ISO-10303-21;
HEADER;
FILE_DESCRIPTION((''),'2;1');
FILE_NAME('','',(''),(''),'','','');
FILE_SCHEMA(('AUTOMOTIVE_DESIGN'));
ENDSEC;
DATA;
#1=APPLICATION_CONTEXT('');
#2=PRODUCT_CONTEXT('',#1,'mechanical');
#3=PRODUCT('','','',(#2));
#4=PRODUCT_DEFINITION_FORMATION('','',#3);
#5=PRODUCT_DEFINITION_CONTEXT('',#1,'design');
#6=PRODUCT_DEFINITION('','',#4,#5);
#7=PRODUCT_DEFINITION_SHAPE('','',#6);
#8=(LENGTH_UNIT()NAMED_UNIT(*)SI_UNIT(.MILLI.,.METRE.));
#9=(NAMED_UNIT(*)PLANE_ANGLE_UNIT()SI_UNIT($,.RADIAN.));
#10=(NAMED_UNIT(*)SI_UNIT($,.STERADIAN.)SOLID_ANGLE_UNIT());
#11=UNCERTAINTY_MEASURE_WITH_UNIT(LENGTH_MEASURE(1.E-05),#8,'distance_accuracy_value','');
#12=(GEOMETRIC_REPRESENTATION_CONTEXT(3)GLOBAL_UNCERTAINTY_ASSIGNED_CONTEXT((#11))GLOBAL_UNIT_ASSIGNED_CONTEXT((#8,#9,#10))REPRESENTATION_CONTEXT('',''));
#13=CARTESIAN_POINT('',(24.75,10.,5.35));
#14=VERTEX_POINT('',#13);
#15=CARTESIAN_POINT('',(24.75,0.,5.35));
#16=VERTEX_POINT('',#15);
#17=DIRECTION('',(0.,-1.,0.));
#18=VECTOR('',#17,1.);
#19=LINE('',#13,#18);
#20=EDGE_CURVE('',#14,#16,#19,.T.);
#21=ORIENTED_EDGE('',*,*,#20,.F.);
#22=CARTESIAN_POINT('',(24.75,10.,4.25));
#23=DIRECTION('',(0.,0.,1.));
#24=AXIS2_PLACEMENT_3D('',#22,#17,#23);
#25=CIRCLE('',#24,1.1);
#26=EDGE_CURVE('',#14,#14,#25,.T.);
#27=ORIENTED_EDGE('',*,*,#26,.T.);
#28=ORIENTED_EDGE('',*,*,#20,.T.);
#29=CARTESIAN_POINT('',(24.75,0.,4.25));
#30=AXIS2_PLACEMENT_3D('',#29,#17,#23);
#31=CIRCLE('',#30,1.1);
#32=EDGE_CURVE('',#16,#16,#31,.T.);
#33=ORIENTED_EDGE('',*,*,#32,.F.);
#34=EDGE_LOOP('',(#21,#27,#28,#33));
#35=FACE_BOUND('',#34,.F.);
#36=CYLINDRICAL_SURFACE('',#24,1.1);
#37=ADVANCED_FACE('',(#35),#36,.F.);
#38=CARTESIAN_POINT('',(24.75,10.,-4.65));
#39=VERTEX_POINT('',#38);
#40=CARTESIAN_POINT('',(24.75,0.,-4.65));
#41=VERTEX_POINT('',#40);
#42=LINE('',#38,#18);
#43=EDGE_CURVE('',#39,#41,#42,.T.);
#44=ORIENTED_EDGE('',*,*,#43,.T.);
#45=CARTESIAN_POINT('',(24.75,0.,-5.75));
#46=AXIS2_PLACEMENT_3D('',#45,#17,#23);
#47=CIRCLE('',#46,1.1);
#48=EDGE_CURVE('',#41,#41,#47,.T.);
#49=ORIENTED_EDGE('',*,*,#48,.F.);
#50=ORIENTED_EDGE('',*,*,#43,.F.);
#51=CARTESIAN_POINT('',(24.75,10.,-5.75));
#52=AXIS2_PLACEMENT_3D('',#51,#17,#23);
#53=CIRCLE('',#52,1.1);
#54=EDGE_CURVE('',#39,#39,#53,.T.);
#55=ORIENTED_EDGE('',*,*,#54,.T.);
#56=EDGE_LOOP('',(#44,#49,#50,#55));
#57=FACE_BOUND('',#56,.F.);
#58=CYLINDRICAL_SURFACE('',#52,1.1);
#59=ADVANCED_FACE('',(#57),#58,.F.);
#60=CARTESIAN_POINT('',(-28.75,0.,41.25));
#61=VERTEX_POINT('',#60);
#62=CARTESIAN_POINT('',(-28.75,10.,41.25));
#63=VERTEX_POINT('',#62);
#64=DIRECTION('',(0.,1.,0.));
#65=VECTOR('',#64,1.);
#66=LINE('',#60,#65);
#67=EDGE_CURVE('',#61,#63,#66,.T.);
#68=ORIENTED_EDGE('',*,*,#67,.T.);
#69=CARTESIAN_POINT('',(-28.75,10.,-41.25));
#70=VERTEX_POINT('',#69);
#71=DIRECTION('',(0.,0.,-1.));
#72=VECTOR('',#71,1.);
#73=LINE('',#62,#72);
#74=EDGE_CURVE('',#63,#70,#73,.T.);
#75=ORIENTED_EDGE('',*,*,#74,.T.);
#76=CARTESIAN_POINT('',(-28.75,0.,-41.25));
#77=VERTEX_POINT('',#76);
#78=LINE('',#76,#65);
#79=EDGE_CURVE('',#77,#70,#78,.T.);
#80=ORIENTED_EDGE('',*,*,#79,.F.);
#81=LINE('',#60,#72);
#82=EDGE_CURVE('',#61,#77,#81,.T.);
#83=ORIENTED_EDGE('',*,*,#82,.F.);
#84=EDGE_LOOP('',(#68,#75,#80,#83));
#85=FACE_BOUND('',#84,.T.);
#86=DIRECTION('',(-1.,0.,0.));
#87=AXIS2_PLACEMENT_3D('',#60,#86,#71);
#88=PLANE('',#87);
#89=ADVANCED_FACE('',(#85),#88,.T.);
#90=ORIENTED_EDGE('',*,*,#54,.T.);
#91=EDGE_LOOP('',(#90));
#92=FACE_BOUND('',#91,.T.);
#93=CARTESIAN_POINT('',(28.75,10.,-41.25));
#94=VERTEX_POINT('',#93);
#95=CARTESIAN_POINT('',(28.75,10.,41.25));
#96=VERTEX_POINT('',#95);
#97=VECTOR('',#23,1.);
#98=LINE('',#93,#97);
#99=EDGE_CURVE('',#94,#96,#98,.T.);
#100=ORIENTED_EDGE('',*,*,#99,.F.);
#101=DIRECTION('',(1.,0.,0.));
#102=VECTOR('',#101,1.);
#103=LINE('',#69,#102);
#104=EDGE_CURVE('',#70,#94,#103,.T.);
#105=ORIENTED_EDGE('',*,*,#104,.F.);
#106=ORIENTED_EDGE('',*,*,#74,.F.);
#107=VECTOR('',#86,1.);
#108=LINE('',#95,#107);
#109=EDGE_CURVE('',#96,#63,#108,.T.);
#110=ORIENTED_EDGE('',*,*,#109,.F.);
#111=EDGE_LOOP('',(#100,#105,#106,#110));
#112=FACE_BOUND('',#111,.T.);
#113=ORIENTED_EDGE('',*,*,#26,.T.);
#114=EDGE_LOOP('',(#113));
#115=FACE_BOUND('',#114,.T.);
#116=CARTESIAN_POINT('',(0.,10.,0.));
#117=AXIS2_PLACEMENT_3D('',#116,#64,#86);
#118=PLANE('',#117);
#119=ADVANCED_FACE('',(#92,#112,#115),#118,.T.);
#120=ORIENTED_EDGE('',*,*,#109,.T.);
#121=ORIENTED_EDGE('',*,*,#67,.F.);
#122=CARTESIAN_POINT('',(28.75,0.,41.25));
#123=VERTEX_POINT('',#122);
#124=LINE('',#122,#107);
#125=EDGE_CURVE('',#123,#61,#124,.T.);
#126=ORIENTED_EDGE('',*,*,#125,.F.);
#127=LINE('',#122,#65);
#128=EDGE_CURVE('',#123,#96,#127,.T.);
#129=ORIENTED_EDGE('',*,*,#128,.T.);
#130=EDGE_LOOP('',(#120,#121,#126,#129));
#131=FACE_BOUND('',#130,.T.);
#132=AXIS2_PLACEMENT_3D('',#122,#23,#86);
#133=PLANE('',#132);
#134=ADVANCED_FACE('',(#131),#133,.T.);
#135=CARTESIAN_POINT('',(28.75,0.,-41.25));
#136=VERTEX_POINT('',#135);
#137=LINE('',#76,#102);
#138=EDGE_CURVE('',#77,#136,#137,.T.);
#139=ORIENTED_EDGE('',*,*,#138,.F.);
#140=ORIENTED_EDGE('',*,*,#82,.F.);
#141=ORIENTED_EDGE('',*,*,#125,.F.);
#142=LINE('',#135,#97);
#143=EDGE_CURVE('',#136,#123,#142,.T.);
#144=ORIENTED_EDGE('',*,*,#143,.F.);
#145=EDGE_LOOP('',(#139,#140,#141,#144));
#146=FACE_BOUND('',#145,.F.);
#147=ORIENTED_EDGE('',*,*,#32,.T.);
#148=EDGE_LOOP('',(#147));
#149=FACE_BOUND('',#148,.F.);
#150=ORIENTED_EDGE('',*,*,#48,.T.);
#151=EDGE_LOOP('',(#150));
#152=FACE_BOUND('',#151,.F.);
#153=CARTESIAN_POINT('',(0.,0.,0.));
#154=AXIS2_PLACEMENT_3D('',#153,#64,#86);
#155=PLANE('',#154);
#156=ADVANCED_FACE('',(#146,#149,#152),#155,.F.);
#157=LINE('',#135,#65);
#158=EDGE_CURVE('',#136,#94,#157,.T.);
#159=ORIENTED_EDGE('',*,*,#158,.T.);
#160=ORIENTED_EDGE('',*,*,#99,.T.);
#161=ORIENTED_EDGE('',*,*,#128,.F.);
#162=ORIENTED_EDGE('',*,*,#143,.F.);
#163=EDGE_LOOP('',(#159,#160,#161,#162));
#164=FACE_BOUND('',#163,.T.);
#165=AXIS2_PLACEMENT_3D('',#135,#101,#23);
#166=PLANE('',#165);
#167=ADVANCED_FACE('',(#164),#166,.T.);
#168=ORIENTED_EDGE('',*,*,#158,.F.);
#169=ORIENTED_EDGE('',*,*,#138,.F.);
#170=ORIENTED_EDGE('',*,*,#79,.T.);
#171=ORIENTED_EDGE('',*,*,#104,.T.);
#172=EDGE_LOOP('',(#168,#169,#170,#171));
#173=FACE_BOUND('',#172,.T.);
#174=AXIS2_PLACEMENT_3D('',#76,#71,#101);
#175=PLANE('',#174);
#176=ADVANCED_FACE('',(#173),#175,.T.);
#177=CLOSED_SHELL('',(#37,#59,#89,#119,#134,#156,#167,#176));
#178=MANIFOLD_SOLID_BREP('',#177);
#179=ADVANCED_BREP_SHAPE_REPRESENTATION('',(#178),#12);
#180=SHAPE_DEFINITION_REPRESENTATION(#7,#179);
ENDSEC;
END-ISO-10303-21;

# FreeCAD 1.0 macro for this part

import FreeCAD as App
import Part
import Sketcher
from FreeCAD import Vector


def add_polygon(sketch, points):
    """Adds a closed chain of lines whose ends are joined by coincident constraints."""
    first, n = sketch.GeometryCount, len(points)
    for a, b in zip(points, points[1:] + points[:1]):
        sketch.addGeometry(Part.LineSegment(App.Vector(*a, 0), App.Vector(*b, 0)), False)
    for i in range(n):
        sketch.addConstraint(Sketcher.Constraint("Coincident", first + i, 2, first + (i + 1) % n, 1))

doc = App.newDocument("Part")
params = doc.addObject("Spreadsheet::Sheet", "Params")
for row, (alias, value) in enumerate([
    ("sketch1_width", "57.5 mm"),
    ("sketch1_height", "82.5 mm"),
    ("pad1_length", "10 mm"),
    ("sketch2_diameter", "2.2 mm"),
    ("hole_diameter", "2.2 mm"),
], start=1):
    params.set(f"A{row}", alias)
    params.set(f"B{row}", "=" + value)
    params.setAlias(f"B{row}", alias)

body = doc.addObject("PartDesign::Body", "Body")

sketch1 = body.newObject("Sketcher::SketchObject", "Sketch")
sketch1.AttachmentSupport = (doc.getObject("XZ_Plane"), [""])
sketch1.MapMode = "FlatFace"
add_polygon(sketch1, [(-29, 41), (29, 41), (29, -41), (-29, -41)])
sketch1.addConstraint([
    Sketcher.Constraint("Horizontal", 0),
    Sketcher.Constraint("Vertical", 1),
    Sketcher.Constraint("Horizontal", 2),
    Sketcher.Constraint("Vertical", 3),
    Sketcher.Constraint("Symmetric", 0, 2, 2, 2, -1, 1),
    Sketcher.Constraint("DistanceX", 0, 1, 0, 2, 57.5),
    Sketcher.Constraint("DistanceY", 1, 2, 1, 1, 82.5),
])
sketch1.setExpression("Constraints[9]", "Params.sketch1_width")
sketch1.setExpression("Constraints[10]", "Params.sketch1_height")
pad1 = body.newObject("PartDesign::Pad", "Pad")
pad1.Profile = sketch1
pad1.setExpression("Length", "Params.pad1_length")
pad1.Reversed = True

sketch2 = body.newObject("Sketcher::SketchObject", "Sketch001")
sketch2.AttachmentSupport = (doc.getObject("XZ_Plane"), [""])
sketch2.MapMode = "FlatFace"
sketch2.AttachmentOffset = App.Placement(Vector(0, 0, -10), App.Rotation())
sketch2.addGeometry([
    Part.Circle(Vector(24.8, -5.8, 0), Vector(0, 0, 1), 1.1),
    Part.Circle(Vector(24.8, 4.2, 0), Vector(0, 0, 1), 1.1),
], False)
sketch2.addConstraint([
    Sketcher.Constraint("Equal", 0, 1),
    Sketcher.Constraint("Vertical", 0, 3, 1, 3),
    Sketcher.Constraint("Diameter", 0, 2.2),
    Sketcher.Constraint("DistanceY", 0, 3, 1, 3, 10.0),
    Sketcher.Constraint("DistanceX", -1, 1, 0, 3, 24.75),
    Sketcher.Constraint("DistanceY", 0, 3, -1, 1, 5.75),
])
sketch2.setExpression("Constraints[2]", "Params.sketch2_diameter")
doc.recompute()
hole = body.newObject("PartDesign::Hole", "Hole")
hole.Profile = sketch2
hole.ThreadType = "None"
hole.setExpression("Diameter", "Params.hole_diameter")
hole.DepthType = "ThroughAll"
hole.Reversed = True

doc.recompute()
